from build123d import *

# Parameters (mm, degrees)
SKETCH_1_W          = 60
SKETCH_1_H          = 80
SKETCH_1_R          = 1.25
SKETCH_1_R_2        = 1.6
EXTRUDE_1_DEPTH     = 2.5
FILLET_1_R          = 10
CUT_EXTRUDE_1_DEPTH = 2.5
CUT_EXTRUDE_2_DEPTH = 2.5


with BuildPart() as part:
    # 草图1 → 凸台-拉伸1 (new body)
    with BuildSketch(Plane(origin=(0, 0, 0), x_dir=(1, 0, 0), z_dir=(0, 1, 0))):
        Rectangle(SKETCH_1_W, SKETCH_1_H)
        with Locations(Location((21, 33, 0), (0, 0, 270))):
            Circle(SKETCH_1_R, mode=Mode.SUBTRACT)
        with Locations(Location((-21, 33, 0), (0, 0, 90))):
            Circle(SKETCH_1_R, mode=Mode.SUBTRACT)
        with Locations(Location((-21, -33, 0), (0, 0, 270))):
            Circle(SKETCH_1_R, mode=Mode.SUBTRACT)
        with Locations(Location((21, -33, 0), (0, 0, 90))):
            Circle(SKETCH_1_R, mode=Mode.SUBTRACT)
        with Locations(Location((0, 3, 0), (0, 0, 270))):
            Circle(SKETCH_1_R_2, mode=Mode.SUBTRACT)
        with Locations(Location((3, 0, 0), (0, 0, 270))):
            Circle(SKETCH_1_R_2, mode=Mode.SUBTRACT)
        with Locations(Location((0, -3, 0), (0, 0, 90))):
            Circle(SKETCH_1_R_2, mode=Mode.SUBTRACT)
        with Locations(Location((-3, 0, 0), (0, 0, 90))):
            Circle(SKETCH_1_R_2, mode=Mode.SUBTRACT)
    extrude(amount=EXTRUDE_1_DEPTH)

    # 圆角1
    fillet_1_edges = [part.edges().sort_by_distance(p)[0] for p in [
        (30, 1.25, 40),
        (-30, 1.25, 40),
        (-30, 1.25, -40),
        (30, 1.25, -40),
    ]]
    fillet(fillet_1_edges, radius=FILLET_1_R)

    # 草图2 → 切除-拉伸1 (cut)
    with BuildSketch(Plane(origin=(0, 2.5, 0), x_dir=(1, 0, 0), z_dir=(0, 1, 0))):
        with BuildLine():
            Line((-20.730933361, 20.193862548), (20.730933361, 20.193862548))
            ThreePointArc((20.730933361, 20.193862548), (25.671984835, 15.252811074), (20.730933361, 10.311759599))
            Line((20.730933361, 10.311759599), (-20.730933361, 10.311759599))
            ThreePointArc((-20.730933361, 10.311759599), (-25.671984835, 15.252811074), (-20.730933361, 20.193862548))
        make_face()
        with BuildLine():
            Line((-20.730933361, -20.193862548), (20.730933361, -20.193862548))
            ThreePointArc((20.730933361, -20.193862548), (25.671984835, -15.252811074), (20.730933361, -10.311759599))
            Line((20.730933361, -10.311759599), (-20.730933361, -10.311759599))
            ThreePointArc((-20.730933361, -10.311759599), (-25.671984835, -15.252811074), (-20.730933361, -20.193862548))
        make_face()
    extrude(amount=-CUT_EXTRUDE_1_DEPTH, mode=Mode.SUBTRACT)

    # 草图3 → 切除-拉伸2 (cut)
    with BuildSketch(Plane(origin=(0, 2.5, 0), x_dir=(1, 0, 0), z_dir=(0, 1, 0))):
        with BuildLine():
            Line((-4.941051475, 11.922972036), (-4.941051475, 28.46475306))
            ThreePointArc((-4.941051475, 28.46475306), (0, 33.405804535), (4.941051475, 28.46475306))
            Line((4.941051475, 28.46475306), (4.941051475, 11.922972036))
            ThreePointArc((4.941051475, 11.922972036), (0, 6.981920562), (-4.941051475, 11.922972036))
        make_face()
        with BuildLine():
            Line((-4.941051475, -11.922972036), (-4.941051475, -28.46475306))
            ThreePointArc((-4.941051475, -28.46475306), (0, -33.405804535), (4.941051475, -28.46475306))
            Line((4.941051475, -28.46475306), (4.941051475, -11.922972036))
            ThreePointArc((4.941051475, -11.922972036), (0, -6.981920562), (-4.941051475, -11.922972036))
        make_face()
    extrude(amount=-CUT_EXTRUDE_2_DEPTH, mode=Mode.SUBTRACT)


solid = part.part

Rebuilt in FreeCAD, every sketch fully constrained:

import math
import FreeCAD as App
import Part
import Sketcher

V = App.Vector
Q = App.Units.Quantity


def edges_at(feature, points):
    """Names of the edges that pass closest to the given points."""
    edges = feature.Shape.Edges
    near = lambda p: min(range(len(edges)), key=lambda i: edges[i].distToShape(Part.Vertex(*p))[0])
    return sorted({f"Edge{near(p) + 1}" for p in points})


def add_polygon(sketch, points):
    """Adds a closed chain of lines whose ends are joined by coincident constraints."""
    first, n = sketch.GeometryCount, len(points)
    for a, b in zip(points, points[1:] + points[:1]):
        sketch.addGeometry(Part.LineSegment(App.Vector(*a, 0), App.Vector(*b, 0)), False)
    for i in range(n):
        sketch.addConstraint(Sketcher.Constraint("Coincident", first + i, 2, first + (i + 1) % n, 1))

doc = App.newDocument("Part")
body = doc.addObject("PartDesign::Body", "Body")

sketch1 = body.newObject("Sketcher::SketchObject", "Sketch")
sketch1.AttachmentSupport = (doc.getObject("XZ_Plane"), [""])
sketch1.MapMode = "FlatFace"
add_polygon(sketch1, [(-30, -40), (-30, 40), (30, 40), (30, -40)])
sketch1.addGeometry(Part.Circle(V(-21, 33, 0), V(0, 0, 1), 1.2), False)
sketch1.addGeometry(Part.Circle(V(21, 33, 0), V(0, 0, 1), 1.2), False)
sketch1.addGeometry(Part.Circle(V(0, 3, 0), V(0, 0, 1), 1.6), False)
sketch1.addGeometry(Part.Circle(V(-3, 0, 0), V(0, 0, 1), 1.6), False)
sketch1.addGeometry(Part.Circle(V(-21, -33, 0), V(0, 0, 1), 1.2), False)
sketch1.addGeometry(Part.Circle(V(0, -3, 0), V(0, 0, 1), 1.6), False)
sketch1.addGeometry(Part.Circle(V(3, 0, 0), V(0, 0, 1), 1.6), False)
sketch1.addGeometry(Part.Circle(V(21, -33, 0), V(0, 0, 1), 1.2), False)
sketch1.addConstraint(Sketcher.Constraint("Vertical", 0))
sketch1.addConstraint(Sketcher.Constraint("Horizontal", 1))
sketch1.addConstraint(Sketcher.Constraint("Vertical", 2))
sketch1.addConstraint(Sketcher.Constraint("Horizontal", 3))
sketch1.addConstraint(Sketcher.Constraint("Equal", 4, 5))
sketch1.addConstraint(Sketcher.Constraint("Equal", 6, 7))
sketch1.addConstraint(Sketcher.Constraint("Equal", 5, 8))
sketch1.addConstraint(Sketcher.Constraint("Equal", 7, 9))
sketch1.addConstraint(Sketcher.Constraint("Equal", 9, 10))
sketch1.addConstraint(Sketcher.Constraint("Equal", 8, 11))
sketch1.addConstraint(Sketcher.Constraint("Symmetric", 5, 3, 8, 3, -1, 1))
sketch1.addConstraint(Sketcher.Constraint("Symmetric", 6, 3, 9, 3, -1, 1))
sketch1.addConstraint(Sketcher.Constraint("Symmetric", 7, 3, 10, 3, -1, 1))
sketch1.addConstraint(Sketcher.Constraint("Symmetric", 4, 3, 11, 3, -1, 1))
sketch1.addConstraint(Sketcher.Constraint("Symmetric", 0, 2, 2, 2, -1, 1))
sketch1.addConstraint(Sketcher.Constraint("Symmetric", 4, 3, 5, 3, -2))
sketch1.addConstraint(Sketcher.Constraint("PointOnObject", 6, 3, -2))
sketch1.addConstraint(Sketcher.Constraint("PointOnObject", 7, 3, -1))
sketch1.addConstraint(Sketcher.Constraint("Diameter", 4, Q("2.5 mm")))
sketch1.addConstraint(Sketcher.Constraint("Diameter", 6, Q("3.2 mm")))
sketch1.addConstraint(Sketcher.Constraint("DistanceX", 1, 1, 1, 2, Q("60 mm")))
sketch1.addConstraint(Sketcher.Constraint("DistanceY", 0, 1, 0, 2, Q("80 mm")))
sketch1.addConstraint(Sketcher.Constraint("DistanceX", 4, 3, -1, 1, Q("21 mm")))
sketch1.addConstraint(Sketcher.Constraint("DistanceY", -1, 1, 4, 3, Q("33 mm")))
sketch1.addConstraint(Sketcher.Constraint("DistanceY", -1, 1, 6, 3, Q("3 mm")))
sketch1.addConstraint(Sketcher.Constraint("DistanceX", 7, 3, -1, 1, Q("3 mm")))
pad1 = body.newObject("PartDesign::Pad", "Pad")
pad1.Profile = sketch1
pad1.Length = 2.5
pad1.Reversed = True
doc.recompute()

fillet = body.newObject("PartDesign::Fillet", "Fillet")
fillet.Base = (pad1, edges_at(pad1, [
    (30, 1.25, 40),
    (-30, 1.25, 40),
    (-30, 1.25, -40),
    (30, 1.25, -40),
]))
fillet.Radius = 10

sketch2 = body.newObject("Sketcher::SketchObject", "Sketch001")
sketch2.AttachmentSupport = (doc.getObject("XZ_Plane"), [""])
sketch2.MapMode = "FlatFace"
sketch2.AttachmentOffset = App.Placement(V(0, 0, -2.5), App.Rotation())
sketch2.addGeometry(Part.LineSegment(V(20.7, -20.2, 0), V(-20.7, -20.2, 0)), False)
sketch2.addGeometry(Part.ArcOfCircle(Part.Circle(V(-20.7, -15.3, 0), V(0, 0, 1), 4.9), math.radians(90), math.radians(270)), False)
sketch2.addGeometry(Part.LineSegment(V(-20.7, -10.3, 0), V(20.7, -10.3, 0)), False)
sketch2.addGeometry(Part.ArcOfCircle(Part.Circle(V(20.7, -15.3, 0), V(0, 0, 1), 4.9), math.radians(-90), math.radians(90)), False)
sketch2.addGeometry(Part.LineSegment(V(-20.7, 20.2, 0), V(20.7, 20.2, 0)), False)
sketch2.addGeometry(Part.ArcOfCircle(Part.Circle(V(20.7, 15.3, 0), V(0, 0, 1), 4.9), math.radians(-90), math.radians(90)), False)
sketch2.addGeometry(Part.LineSegment(V(20.7, 10.3, 0), V(-20.7, 10.3, 0)), False)
sketch2.addGeometry(Part.ArcOfCircle(Part.Circle(V(-20.7, 15.3, 0), V(0, 0, 1), 4.9), math.radians(90), math.radians(270)), False)
sketch2.addConstraint(Sketcher.Constraint("Tangent", 0, 2, 1, 2))
sketch2.addConstraint(Sketcher.Constraint("Tangent", 1, 1, 2, 1))
sketch2.addConstraint(Sketcher.Constraint("Tangent", 2, 2, 3, 2))
sketch2.addConstraint(Sketcher.Constraint("Tangent", 3, 1, 0, 1))
sketch2.addConstraint(Sketcher.Constraint("Tangent", 4, 2, 5, 2))
sketch2.addConstraint(Sketcher.Constraint("Tangent", 5, 1, 6, 1))
sketch2.addConstraint(Sketcher.Constraint("Tangent", 6, 2, 7, 2))
sketch2.addConstraint(Sketcher.Constraint("Tangent", 7, 1, 4, 1))
sketch2.addConstraint(Sketcher.Constraint("Horizontal", 0))
sketch2.addConstraint(Sketcher.Constraint("Horizontal", 2))
sketch2.addConstraint(Sketcher.Constraint("Horizontal", 4))
sketch2.addConstraint(Sketcher.Constraint("Horizontal", 6))
sketch2.addConstraint(Sketcher.Constraint("Equal", 3, 5))
sketch2.addConstraint(Sketcher.Constraint("Symmetric", 1, 3, 5, 3, -1, 1))
sketch2.addConstraint(Sketcher.Constraint("Vertical", 3, 3, 5, 3))
sketch2.addConstraint(Sketcher.Constraint("Vertical", 1, 3, 7, 3))
sketch2.addConstraint(Sketcher.Constraint("Radius", 1, Q("4.941051 mm")))
sketch2.addConstraint(Sketcher.Constraint("DistanceX", 0, 2, 0, 1, Q("41.461867 mm")))
sketch2.addConstraint(Sketcher.Constraint("DistanceY", 1, 3, -1, 1, Q("15.252811 mm")))
pocket1 = body.newObject("PartDesign::Pocket", "Pocket")
pocket1.Profile = sketch2
pocket1.Length = 2.5
pocket1.Reversed = True

sketch3 = body.newObject("Sketcher::SketchObject", "Sketch002")
sketch3.AttachmentSupport = (doc.getObject("XZ_Plane"), [""])
sketch3.MapMode = "FlatFace"
sketch3.AttachmentOffset = App.Placement(V(0, 0, -2.5), App.Rotation())
sketch3.addGeometry(Part.LineSegment(V(-4.9, -28.5, 0), V(-4.9, -11.9, 0)), False)
sketch3.addGeometry(Part.ArcOfCircle(Part.Circle(V(0, -11.9, 0), V(0, 0, 1), 4.9), math.radians(0), math.radians(180)), False)
sketch3.addGeometry(Part.LineSegment(V(4.9, -11.9, 0), V(4.9, -28.5, 0)), False)
sketch3.addGeometry(Part.ArcOfCircle(Part.Circle(V(0, -28.5, 0), V(0, 0, 1), 4.9), math.radians(180), math.radians(360)), False)
sketch3.addGeometry(Part.LineSegment(V(-4.9, 11.9, 0), V(-4.9, 28.5, 0)), False)
sketch3.addGeometry(Part.ArcOfCircle(Part.Circle(V(0, 28.5, 0), V(0, 0, 1), 4.9), math.radians(0), math.radians(180)), False)
sketch3.addGeometry(Part.LineSegment(V(4.9, 28.5, 0), V(4.9, 11.9, 0)), False)
sketch3.addGeometry(Part.ArcOfCircle(Part.Circle(V(0, 11.9, 0), V(0, 0, 1), 4.9), math.radians(-180), math.radians(0)), False)
sketch3.addConstraint(Sketcher.Constraint("Tangent", 0, 2, 1, 2))
sketch3.addConstraint(Sketcher.Constraint("Tangent", 1, 1, 2, 1))
sketch3.addConstraint(Sketcher.Constraint("Tangent", 2, 2, 3, 2))
sketch3.addConstraint(Sketcher.Constraint("Tangent", 3, 1, 0, 1))
sketch3.addConstraint(Sketcher.Constraint("Tangent", 4, 2, 5, 2))
sketch3.addConstraint(Sketcher.Constraint("Tangent", 5, 1, 6, 1))
sketch3.addConstraint(Sketcher.Constraint("Tangent", 6, 2, 7, 2))
sketch3.addConstraint(Sketcher.Constraint("Tangent", 7, 1, 4, 1))
sketch3.addConstraint(Sketcher.Constraint("Vertical", 0))
sketch3.addConstraint(Sketcher.Constraint("Vertical", 2))
sketch3.addConstraint(Sketcher.Constraint("Vertical", 4))
sketch3.addConstraint(Sketcher.Constraint("Vertical", 6))
sketch3.addConstraint(Sketcher.Constraint("Equal", 3, 5))
sketch3.addConstraint(Sketcher.Constraint("Symmetric", 3, 3, 5, 3, -1, 1))
sketch3.addConstraint(Sketcher.Constraint("Symmetric", 1, 3, 7, 3, -1))
sketch3.addConstraint(Sketcher.Constraint("Radius", 1, Q("4.941051 mm")))
sketch3.addConstraint(Sketcher.Constraint("DistanceY", 0, 1, 0, 2, Q("16.541781 mm")))
sketch3.addConstraint(Sketcher.Constraint("DistanceY", 1, 3, -1, 1, Q("11.922972 mm")))
pocket2 = body.newObject("PartDesign::Pocket", "Pocket001")
pocket2.Profile = sketch3
pocket2.Length = 2.5
pocket2.Reversed = True

doc.recompute()
